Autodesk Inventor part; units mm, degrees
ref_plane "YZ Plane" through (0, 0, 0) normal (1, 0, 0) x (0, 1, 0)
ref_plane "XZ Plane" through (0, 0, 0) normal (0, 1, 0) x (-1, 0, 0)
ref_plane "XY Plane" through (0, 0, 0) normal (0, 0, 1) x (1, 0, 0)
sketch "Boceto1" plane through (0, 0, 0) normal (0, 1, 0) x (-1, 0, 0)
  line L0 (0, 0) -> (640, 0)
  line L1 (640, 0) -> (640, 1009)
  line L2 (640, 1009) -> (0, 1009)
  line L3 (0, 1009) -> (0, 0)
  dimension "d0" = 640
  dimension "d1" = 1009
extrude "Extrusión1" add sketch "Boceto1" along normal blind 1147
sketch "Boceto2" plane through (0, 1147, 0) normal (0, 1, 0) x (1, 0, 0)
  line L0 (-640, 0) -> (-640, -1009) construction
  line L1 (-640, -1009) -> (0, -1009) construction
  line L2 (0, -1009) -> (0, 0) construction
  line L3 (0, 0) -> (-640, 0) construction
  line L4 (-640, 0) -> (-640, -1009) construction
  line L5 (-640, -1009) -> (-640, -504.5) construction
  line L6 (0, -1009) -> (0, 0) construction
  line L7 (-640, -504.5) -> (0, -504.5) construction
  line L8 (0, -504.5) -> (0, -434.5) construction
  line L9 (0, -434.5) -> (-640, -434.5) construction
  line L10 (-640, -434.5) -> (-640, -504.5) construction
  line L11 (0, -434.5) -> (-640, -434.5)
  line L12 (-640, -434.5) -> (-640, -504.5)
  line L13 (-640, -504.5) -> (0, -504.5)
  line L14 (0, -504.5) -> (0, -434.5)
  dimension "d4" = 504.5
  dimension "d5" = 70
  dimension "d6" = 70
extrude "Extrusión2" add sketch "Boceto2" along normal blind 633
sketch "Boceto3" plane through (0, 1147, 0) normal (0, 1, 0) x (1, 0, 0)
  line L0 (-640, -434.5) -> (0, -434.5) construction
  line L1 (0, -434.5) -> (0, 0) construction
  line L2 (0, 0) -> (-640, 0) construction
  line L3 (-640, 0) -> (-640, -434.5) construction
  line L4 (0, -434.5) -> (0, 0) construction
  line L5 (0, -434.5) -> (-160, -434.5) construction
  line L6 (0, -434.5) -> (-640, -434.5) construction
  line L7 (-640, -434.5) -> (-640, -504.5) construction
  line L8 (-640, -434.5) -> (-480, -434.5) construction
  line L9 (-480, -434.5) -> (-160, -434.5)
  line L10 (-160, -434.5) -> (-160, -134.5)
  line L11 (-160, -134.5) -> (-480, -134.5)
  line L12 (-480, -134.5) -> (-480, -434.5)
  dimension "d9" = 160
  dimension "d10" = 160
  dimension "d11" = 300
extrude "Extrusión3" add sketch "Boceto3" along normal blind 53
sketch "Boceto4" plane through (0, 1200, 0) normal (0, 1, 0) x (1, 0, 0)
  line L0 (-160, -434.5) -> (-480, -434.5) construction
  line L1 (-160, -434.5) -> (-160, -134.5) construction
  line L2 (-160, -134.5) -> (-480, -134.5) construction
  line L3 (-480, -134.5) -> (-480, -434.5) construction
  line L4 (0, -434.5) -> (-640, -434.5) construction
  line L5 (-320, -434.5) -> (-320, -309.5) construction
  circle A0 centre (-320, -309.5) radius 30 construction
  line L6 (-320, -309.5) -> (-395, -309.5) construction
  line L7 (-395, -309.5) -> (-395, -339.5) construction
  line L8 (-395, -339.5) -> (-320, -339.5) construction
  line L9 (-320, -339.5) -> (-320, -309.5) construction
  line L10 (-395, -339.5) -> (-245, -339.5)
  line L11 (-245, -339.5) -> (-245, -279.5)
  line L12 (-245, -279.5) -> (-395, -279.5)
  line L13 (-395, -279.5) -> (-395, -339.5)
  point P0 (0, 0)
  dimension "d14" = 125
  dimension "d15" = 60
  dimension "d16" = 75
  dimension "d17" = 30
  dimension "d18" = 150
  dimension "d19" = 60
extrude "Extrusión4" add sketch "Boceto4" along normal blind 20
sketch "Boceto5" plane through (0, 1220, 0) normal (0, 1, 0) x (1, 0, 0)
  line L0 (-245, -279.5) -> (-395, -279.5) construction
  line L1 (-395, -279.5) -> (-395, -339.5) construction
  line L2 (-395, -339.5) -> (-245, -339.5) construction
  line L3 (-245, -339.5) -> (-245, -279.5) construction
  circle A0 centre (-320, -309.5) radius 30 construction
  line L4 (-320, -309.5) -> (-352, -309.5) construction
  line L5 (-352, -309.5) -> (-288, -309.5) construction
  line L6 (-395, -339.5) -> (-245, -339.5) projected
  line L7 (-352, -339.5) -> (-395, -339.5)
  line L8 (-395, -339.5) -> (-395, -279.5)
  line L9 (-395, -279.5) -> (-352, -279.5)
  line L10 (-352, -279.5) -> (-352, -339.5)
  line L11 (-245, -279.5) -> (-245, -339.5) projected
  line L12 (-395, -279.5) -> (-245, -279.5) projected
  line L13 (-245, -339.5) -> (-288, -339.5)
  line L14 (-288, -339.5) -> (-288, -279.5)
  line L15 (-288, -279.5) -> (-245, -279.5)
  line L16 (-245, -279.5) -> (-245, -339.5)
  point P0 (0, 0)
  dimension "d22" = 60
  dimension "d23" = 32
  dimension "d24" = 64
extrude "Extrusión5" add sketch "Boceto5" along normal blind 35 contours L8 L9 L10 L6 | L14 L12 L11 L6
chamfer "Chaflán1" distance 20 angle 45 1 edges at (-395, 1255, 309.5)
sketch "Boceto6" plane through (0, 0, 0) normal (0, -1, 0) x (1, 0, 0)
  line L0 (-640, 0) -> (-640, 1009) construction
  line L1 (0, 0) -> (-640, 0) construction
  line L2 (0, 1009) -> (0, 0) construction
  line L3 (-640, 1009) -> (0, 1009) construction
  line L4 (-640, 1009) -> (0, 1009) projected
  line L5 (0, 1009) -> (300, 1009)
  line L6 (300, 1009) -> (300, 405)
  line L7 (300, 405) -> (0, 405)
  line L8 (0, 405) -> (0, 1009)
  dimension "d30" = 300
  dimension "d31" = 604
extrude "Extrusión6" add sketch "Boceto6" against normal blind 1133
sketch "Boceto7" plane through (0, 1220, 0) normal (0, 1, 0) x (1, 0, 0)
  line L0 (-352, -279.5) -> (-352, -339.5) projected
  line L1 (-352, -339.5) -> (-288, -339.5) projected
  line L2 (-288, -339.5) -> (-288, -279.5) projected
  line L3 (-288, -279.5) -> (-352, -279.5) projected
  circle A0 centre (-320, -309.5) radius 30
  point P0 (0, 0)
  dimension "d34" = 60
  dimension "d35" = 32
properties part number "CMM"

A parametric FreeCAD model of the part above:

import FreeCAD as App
import Part
import Sketcher

V = App.Vector


def edges_at(feature, points):
    """Names of the edges that pass closest to the given points."""
    edges = feature.Shape.Edges
    near = lambda p: min(range(len(edges)), key=lambda i: edges[i].distToShape(Part.Vertex(*p))[0])
    return sorted({f"Edge{near(p) + 1}" for p in points})

doc = App.newDocument("Part")
params = doc.addObject("Spreadsheet::Sheet", "Params")
for row, (alias, value) in enumerate([
    ("sketch1_width", "640 mm"),
    ("sketch1_height", "1009 mm"),
    ("pad1_length", "1147 mm"),
    ("sketch2_height", "70 mm"),
    ("sketch2_width", "640 mm"),
    ("pad2_length", "633 mm"),
    ("sketch3_height", "300 mm"),
    ("sketch3_width", "320 mm"),
    ("pad3_length", "53 mm"),
    ("sketch4_width", "150 mm"),
    ("sketch4_height", "60 mm"),
    ("pad4_length", "20 mm"),
    ("sketch5_height", "60 mm"),
    ("sketch5_width", "43 mm"),
    ("pad5_length", "35 mm"),
    ("chamfer_size", "20 mm"),
    ("sketch6_width", "300 mm"),
    ("sketch6_height", "604 mm"),
    ("pad6_length", "1133 mm"),
], start=1):
    params.set(f"A{row}", alias)
    params.set(f"B{row}", "=" + value)
    params.setAlias(f"B{row}", alias)

body = doc.addObject("PartDesign::Body", "Body")

# Sketch on XZ plane
sketch1 = doc.addObject("Sketcher::SketchObject", "Sketch")
body.addObject(sketch1)
sketch1.AttachmentSupport = (doc.XZ_Plane, [""])
sketch1.MapMode = "FlatFace"
sketch1.addGeometry([
    Part.LineSegment(V(0, 1009, 0), V(0, 0, 0)),
    Part.LineSegment(V(0, 0, 0), V(-640, 0, 0)),
    Part.LineSegment(V(-640, 0, 0), V(-640, 1009, 0)),
    Part.LineSegment(V(-640, 1009, 0), V(0, 1009, 0)),
], False)
sketch1.addConstraint([
    Sketcher.Constraint("Coincident", 0, 2, 1, 1),
    Sketcher.Constraint("Coincident", 1, 2, 2, 1),
    Sketcher.Constraint("Coincident", 2, 2, 3, 1),
    Sketcher.Constraint("Coincident", 3, 2, 0, 1),
    Sketcher.Constraint("Vertical", 0),
    Sketcher.Constraint("Horizontal", 1),
    Sketcher.Constraint("Vertical", 2),
    Sketcher.Constraint("Horizontal", 3),
    Sketcher.Constraint("Coincident", 0, 2, -1, 1),
    Sketcher.Constraint("DistanceX", 1, 2, 1, 1, 640.0),
    Sketcher.Constraint("DistanceY", 0, 2, 0, 1, 1009.0),
])
sketch1.setExpression("Constraints[9]", "Params.sketch1_width")
sketch1.setExpression("Constraints[10]", "Params.sketch1_height")
pad1 = doc.addObject("PartDesign::Pad", "Pad")
body.addObject(pad1)
pad1.Profile = sketch1
pad1.setExpression("Length", "Params.pad1_length")
pad1.Reversed = True

# Sketch on XZ plane
sketch2 = doc.addObject("Sketcher::SketchObject", "Sketch001")
body.addObject(sketch2)
sketch2.AttachmentSupport = (doc.XZ_Plane, [""])
sketch2.MapMode = "FlatFace"
sketch2.AttachmentOffset = App.Placement(V(0, 0, -1147), App.Rotation())
sketch2.addGeometry([
    Part.LineSegment(V(0, 504, 0), V(0, 434, 0)),
    Part.LineSegment(V(0, 434, 0), V(-640, 434, 0)),
    Part.LineSegment(V(-640, 434, 0), V(-640, 504, 0)),
    Part.LineSegment(V(-640, 504, 0), V(0, 504, 0)),
], False)
sketch2.addConstraint([
    Sketcher.Constraint("Coincident", 0, 2, 1, 1),
    Sketcher.Constraint("Coincident", 1, 2, 2, 1),
    Sketcher.Constraint("Coincident", 2, 2, 3, 1),
    Sketcher.Constraint("Coincident", 3, 2, 0, 1),
    Sketcher.Constraint("Vertical", 0),
    Sketcher.Constraint("Horizontal", 1),
    Sketcher.Constraint("Vertical", 2),
    Sketcher.Constraint("Horizontal", 3),
    Sketcher.Constraint("PointOnObject", 0, 2, -2),
    Sketcher.Constraint("DistanceY", 0, 2, 0, 1, 70.0),
    Sketcher.Constraint("DistanceY", -1, 1, 2, 2, 504.5),
    Sketcher.Constraint("DistanceX", 1, 2, 1, 1, 640.0),
])
sketch2.setExpression("Constraints[9]", "Params.sketch2_height")
sketch2.setExpression("Constraints[11]", "Params.sketch2_width")
pad2 = doc.addObject("PartDesign::Pad", "Pad001")
body.addObject(pad2)
pad2.Profile = sketch2
pad2.setExpression("Length", "Params.pad2_length")
pad2.Reversed = True

# Sketch on XZ plane
sketch3 = doc.addObject("Sketcher::SketchObject", "Sketch002")
body.addObject(sketch3)
sketch3.AttachmentSupport = (doc.XZ_Plane, [""])
sketch3.MapMode = "FlatFace"
sketch3.AttachmentOffset = App.Placement(V(0, 0, -1147), App.Rotation())
sketch3.addGeometry([
    Part.LineSegment(V(-480, 134, 0), V(-480, 434, 0)),
    Part.LineSegment(V(-480, 434, 0), V(-160, 434, 0)),
    Part.LineSegment(V(-160, 434, 0), V(-160, 134, 0)),
    Part.LineSegment(V(-160, 134, 0), V(-480, 134, 0)),
], False)
sketch3.addConstraint([
    Sketcher.Constraint("Coincident", 0, 2, 1, 1),
    Sketcher.Constraint("Coincident", 1, 2, 2, 1),
    Sketcher.Constraint("Coincident", 2, 2, 3, 1),
    Sketcher.Constraint("Coincident", 3, 2, 0, 1),
    Sketcher.Constraint("Vertical", 0),
    Sketcher.Constraint("Horizontal", 1),
    Sketcher.Constraint("Vertical", 2),
    Sketcher.Constraint("Horizontal", 3),
    Sketcher.Constraint("DistanceY", 0, 1, 0, 2, 300.0),
    Sketcher.Constraint("DistanceX", 1, 2, -1, 1, 160.0),
    Sketcher.Constraint("DistanceX", 1, 1, 1, 2, 320.0),
    Sketcher.Constraint("DistanceY", -1, 1, 0, 2, 434.5),
])
sketch3.setExpression("Constraints[8]", "Params.sketch3_height")
sketch3.setExpression("Constraints[10]", "Params.sketch3_width")
pad3 = doc.addObject("PartDesign::Pad", "Pad002")
body.addObject(pad3)
pad3.Profile = sketch3
pad3.setExpression("Length", "Params.pad3_length")
pad3.Reversed = True

# Sketch on XZ plane
sketch4 = doc.addObject("Sketcher::SketchObject", "Sketch003")
body.addObject(sketch4)
sketch4.AttachmentSupport = (doc.XZ_Plane, [""])
sketch4.MapMode = "FlatFace"
sketch4.AttachmentOffset = App.Placement(V(0, 0, -1200), App.Rotation())
sketch4.addGeometry([
    Part.LineSegment(V(-395, 280, 0), V(-395, 340, 0)),
    Part.LineSegment(V(-395, 340, 0), V(-245, 340, 0)),
    Part.LineSegment(V(-245, 340, 0), V(-245, 280, 0)),
    Part.LineSegment(V(-245, 280, 0), V(-395, 280, 0)),
], False)
sketch4.addConstraint([
    Sketcher.Constraint("Coincident", 0, 2, 1, 1),
    Sketcher.Constraint("Coincident", 1, 2, 2, 1),
    Sketcher.Constraint("Coincident", 2, 2, 3, 1),
    Sketcher.Constraint("Coincident", 3, 2, 0, 1),
    Sketcher.Constraint("Vertical", 0),
    Sketcher.Constraint("Horizontal", 1),
    Sketcher.Constraint("Vertical", 2),
    Sketcher.Constraint("Horizontal", 3),
    Sketcher.Constraint("DistanceX", 1, 1, 1, 2, 150.0),
    Sketcher.Constraint("DistanceY", 0, 1, 0, 2, 60.0),
    Sketcher.Constraint("DistanceX", 0, 2, -1, 1, 395.0),
    Sketcher.Constraint("DistanceY", -1, 1, 0, 2, 339.5),
])
sketch4.setExpression("Constraints[8]", "Params.sketch4_width")
sketch4.setExpression("Constraints[9]", "Params.sketch4_height")
pad4 = doc.addObject("PartDesign::Pad", "Pad003")
body.addObject(pad4)
pad4.Profile = sketch4
pad4.setExpression("Length", "Params.pad4_length")
pad4.Reversed = True

# Sketch on XZ plane
sketch5 = doc.addObject("Sketcher::SketchObject", "Sketch004")
body.addObject(sketch5)
sketch5.AttachmentSupport = (doc.XZ_Plane, [""])
sketch5.MapMode = "FlatFace"
sketch5.AttachmentOffset = App.Placement(V(0, 0, -1220), App.Rotation())
sketch5.addGeometry([
    Part.LineSegment(V(-395, 280, 0), V(-395, 340, 0)),  # 0
    Part.LineSegment(V(-395, 340, 0), V(-352, 340, 0)),  # 1
    Part.LineSegment(V(-352, 340, 0), V(-352, 280, 0)),  # 2
    Part.LineSegment(V(-352, 280, 0), V(-395, 280, 0)),  # 3
    Part.LineSegment(V(-288, 280, 0), V(-288, 340, 0)),  # 4
    Part.LineSegment(V(-288, 340, 0), V(-245, 340, 0)),  # 5
    Part.LineSegment(V(-245, 340, 0), V(-245, 280, 0)),  # 6
    Part.LineSegment(V(-245, 280, 0), V(-288, 280, 0)),  # 7
], False)
sketch5.addConstraint([
    Sketcher.Constraint("Coincident", 0, 2, 1, 1),
    Sketcher.Constraint("Coincident", 1, 2, 2, 1),
    Sketcher.Constraint("Coincident", 2, 2, 3, 1),
    Sketcher.Constraint("Coincident", 3, 2, 0, 1),
    Sketcher.Constraint("Coincident", 4, 2, 5, 1),
    Sketcher.Constraint("Coincident", 5, 2, 6, 1),
    Sketcher.Constraint("Coincident", 6, 2, 7, 1),
    Sketcher.Constraint("Coincident", 7, 2, 4, 1),
    Sketcher.Constraint("Vertical", 0),
    Sketcher.Constraint("Horizontal", 1),
    Sketcher.Constraint("Vertical", 2),
    Sketcher.Constraint("Horizontal", 3),
    Sketcher.Constraint("Vertical", 4),
    Sketcher.Constraint("Horizontal", 5),
    Sketcher.Constraint("Vertical", 6),
    Sketcher.Constraint("Horizontal", 7),
    Sketcher.Constraint("Horizontal", 1, 2, 4, 2),
    Sketcher.Constraint("Horizontal", 3, 2, 6, 2),
    Sketcher.Constraint("Equal", 3, 5),
    Sketcher.Constraint("DistanceY", 0, 1, 0, 2, 60.0),
    Sketcher.Constraint("DistanceX", 1, 2, 4, 2, 64.0),
    Sketcher.Constraint("DistanceX", 1, 1, 1, 2, 43.0),
    Sketcher.Constraint("DistanceX", 0, 2, -1, 1, 395.0),
    Sketcher.Constraint("DistanceY", -1, 1, 0, 2, 339.5),
])
sketch5.setExpression("Constraints[19]", "Params.sketch5_height")
sketch5.setExpression("Constraints[21]", "Params.sketch5_width")
pad5 = doc.addObject("PartDesign::Pad", "Pad004")
body.addObject(pad5)
pad5.Profile = sketch5
pad5.setExpression("Length", "Params.pad5_length")
pad5.Reversed = True
doc.recompute()

chamfer = doc.addObject("PartDesign::Chamfer", "Chamfer")
body.addObject(chamfer)
chamfer.Base = (pad5, edges_at(pad5, [(-395, 1255, 309.5)]))
chamfer.setExpression("Size", "Params.chamfer_size")

# Sketch on XZ plane
sketch6 = doc.addObject("Sketcher::SketchObject", "Sketch005")
body.addObject(sketch6)
sketch6.AttachmentSupport = (doc.XZ_Plane, [""])
sketch6.MapMode = "FlatFace"
sketch6.addGeometry([
    Part.LineSegment(V(300, 1009, 0), V(0, 1009, 0)),
    Part.LineSegment(V(0, 1009, 0), V(0, 405, 0)),
    Part.LineSegment(V(0, 405, 0), V(300, 405, 0)),
    Part.LineSegment(V(300, 405, 0), V(300, 1009, 0)),
], False)
sketch6.addConstraint([
    Sketcher.Constraint("Coincident", 0, 2, 1, 1),
    Sketcher.Constraint("Coincident", 1, 2, 2, 1),
    Sketcher.Constraint("Coincident", 2, 2, 3, 1),
    Sketcher.Constraint("Coincident", 3, 2, 0, 1),
    Sketcher.Constraint("Horizontal", 0),
    Sketcher.Constraint("Vertical", 1),
    Sketcher.Constraint("Horizontal", 2),
    Sketcher.Constraint("Vertical", 3),
    Sketcher.Constraint("PointOnObject", 0, 2, -2),
    Sketcher.Constraint("DistanceX", 0, 2, 0, 1, 300.0),
    Sketcher.Constraint("DistanceY", 1, 2, 1, 1, 604.0),
    Sketcher.Constraint("DistanceY", -1, 1, 0, 2, 1009.0),
])
sketch6.setExpression("Constraints[9]", "Params.sketch6_width")
sketch6.setExpression("Constraints[10]", "Params.sketch6_height")
pad6 = doc.addObject("PartDesign::Pad", "Pad005")
body.addObject(pad6)
pad6.Profile = sketch6
pad6.setExpression("Length", "Params.pad6_length")
pad6.Reversed = True

doc.recompute()
